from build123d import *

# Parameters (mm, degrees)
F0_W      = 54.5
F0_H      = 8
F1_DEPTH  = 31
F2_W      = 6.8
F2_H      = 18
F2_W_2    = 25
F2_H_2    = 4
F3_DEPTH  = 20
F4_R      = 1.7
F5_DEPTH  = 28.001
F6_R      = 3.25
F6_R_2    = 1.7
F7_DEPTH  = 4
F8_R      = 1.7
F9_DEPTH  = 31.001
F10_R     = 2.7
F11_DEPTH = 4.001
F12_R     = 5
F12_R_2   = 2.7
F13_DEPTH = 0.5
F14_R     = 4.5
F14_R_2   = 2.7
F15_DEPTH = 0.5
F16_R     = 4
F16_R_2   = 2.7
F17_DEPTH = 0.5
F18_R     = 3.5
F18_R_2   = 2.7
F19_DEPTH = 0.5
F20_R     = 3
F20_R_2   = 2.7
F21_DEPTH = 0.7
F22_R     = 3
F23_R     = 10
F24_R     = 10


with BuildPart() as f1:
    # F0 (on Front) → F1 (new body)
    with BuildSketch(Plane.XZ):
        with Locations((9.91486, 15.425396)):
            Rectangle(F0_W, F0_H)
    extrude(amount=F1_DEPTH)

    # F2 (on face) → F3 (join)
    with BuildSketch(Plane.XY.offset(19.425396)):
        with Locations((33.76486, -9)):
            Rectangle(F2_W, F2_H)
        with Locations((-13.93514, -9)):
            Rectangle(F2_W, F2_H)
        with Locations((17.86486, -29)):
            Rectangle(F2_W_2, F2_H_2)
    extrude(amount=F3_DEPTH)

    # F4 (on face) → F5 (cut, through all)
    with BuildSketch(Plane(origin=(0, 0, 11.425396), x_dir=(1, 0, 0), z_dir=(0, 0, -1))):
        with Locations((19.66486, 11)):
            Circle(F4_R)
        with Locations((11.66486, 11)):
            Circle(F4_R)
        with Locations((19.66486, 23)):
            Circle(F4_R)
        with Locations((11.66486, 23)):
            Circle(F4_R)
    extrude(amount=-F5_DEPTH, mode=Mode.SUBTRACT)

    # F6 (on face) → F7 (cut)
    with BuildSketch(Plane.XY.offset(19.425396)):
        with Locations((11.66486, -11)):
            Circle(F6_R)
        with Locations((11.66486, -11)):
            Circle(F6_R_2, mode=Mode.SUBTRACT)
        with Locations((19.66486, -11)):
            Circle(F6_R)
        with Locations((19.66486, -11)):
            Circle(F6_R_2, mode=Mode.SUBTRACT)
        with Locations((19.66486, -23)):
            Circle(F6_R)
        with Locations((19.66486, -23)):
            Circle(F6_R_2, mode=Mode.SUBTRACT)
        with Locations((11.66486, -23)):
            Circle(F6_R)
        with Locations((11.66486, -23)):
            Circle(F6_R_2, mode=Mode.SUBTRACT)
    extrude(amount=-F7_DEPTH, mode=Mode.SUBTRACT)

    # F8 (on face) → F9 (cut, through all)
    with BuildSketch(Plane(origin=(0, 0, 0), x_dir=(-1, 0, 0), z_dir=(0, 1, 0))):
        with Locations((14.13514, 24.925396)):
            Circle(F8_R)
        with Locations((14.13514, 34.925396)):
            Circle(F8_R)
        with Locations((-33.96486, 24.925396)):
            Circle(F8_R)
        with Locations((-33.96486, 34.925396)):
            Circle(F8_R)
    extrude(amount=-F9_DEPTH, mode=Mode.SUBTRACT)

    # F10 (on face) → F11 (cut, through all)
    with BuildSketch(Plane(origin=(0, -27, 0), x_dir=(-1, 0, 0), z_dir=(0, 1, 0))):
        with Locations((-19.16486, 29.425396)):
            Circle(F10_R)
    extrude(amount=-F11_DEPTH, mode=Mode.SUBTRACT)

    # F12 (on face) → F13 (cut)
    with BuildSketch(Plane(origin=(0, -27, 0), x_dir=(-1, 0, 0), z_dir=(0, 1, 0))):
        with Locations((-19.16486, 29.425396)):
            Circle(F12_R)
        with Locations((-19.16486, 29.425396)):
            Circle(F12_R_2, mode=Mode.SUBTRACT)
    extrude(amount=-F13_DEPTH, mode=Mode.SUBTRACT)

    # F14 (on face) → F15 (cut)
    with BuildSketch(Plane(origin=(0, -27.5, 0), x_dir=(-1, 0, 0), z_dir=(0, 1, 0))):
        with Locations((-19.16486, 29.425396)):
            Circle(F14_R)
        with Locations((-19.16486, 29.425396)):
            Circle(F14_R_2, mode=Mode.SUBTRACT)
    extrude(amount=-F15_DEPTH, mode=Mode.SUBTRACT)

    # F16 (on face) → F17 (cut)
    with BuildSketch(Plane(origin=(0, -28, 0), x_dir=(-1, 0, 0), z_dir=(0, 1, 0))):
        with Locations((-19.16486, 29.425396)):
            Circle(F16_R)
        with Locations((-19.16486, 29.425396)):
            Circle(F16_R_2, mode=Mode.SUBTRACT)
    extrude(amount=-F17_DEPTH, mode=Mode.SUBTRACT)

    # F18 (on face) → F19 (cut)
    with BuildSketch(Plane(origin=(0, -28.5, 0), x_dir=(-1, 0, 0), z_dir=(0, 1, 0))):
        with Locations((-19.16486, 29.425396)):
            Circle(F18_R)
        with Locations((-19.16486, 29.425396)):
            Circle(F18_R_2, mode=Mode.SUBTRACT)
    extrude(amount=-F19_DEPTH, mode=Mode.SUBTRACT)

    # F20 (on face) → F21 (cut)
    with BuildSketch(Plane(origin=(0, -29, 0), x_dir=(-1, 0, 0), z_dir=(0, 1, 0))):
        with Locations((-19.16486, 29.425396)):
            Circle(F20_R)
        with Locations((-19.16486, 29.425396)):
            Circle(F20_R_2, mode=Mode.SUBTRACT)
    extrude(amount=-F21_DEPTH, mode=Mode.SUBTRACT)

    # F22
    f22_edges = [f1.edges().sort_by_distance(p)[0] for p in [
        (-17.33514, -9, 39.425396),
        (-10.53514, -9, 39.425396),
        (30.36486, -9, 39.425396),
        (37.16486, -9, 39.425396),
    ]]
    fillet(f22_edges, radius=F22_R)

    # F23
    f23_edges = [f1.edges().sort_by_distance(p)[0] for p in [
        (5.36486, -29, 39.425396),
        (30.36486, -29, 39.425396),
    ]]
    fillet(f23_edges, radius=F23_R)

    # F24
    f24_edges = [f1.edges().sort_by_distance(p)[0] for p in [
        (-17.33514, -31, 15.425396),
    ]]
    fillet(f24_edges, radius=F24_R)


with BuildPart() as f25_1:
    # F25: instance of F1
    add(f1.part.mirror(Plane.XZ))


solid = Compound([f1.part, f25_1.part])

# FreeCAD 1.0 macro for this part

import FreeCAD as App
import Part
import Sketcher

V = App.Vector
Q = App.Units.Quantity


def edges_at(feature, points):
    """Names of the edges that pass closest to the given points."""
    edges = feature.Shape.Edges
    near = lambda p: min(range(len(edges)), key=lambda i: edges[i].distToShape(Part.Vertex(*p))[0])
    return sorted({f"Edge{near(p) + 1}" for p in points})

doc = App.newDocument("Part")
body = doc.addObject("PartDesign::Body", "Body")

# Sketch on XZ plane
sketch1 = body.newObject("Sketcher::SketchObject", "Sketch")
sketch1.AttachmentSupport = (doc.getObject("XZ_Plane"), [""])
sketch1.MapMode = "FlatFace"
sketch1.addGeometry([
    Part.LineSegment(V(-17, 19, 0), V(-17, 11, 0)),
    Part.LineSegment(V(-17, 11, 0), V(37, 11, 0)),
    Part.LineSegment(V(37, 11, 0), V(37, 19, 0)),
    Part.LineSegment(V(37, 19, 0), V(-17, 19, 0)),
], False)
sketch1.addConstraint([
    Sketcher.Constraint("Coincident", 0, 2, 1, 1),
    Sketcher.Constraint("Coincident", 1, 2, 2, 1),
    Sketcher.Constraint("Coincident", 2, 2, 3, 1),
    Sketcher.Constraint("Coincident", 3, 2, 0, 1),
    Sketcher.Constraint("Vertical", 0),
    Sketcher.Constraint("Horizontal", 1),
    Sketcher.Constraint("Vertical", 2),
    Sketcher.Constraint("Horizontal", 3),
    Sketcher.Constraint("DistanceY", 0, 2, 0, 1, Q("8 mm")),
    Sketcher.Constraint("DistanceX", 1, 1, 1, 2, Q("54.5 mm")),
    Sketcher.Constraint("DistanceX", 0, 2, -1, 1, Q("17.33514 mm")),
    Sketcher.Constraint("DistanceY", -1, 1, 0, 2, Q("11.425396 mm")),
])
pad1 = body.newObject("PartDesign::Pad", "Pad")
pad1.Profile = sketch1
pad1.Length = 31

# Sketch on XY plane
sketch2 = body.newObject("Sketcher::SketchObject", "Sketch001")
sketch2.AttachmentSupport = (doc.getObject("XY_Plane"), [""])
sketch2.MapMode = "FlatFace"
sketch2.AttachmentOffset = App.Placement(V(0, 0, 19.425396), App.Rotation())
sketch2.addGeometry([
    Part.LineSegment(V(30.4, 0, 0), V(30.4, -18, 0)),  # 0
    Part.LineSegment(V(30.4, -18, 0), V(37.2, -18, 0)),  # 1
    Part.LineSegment(V(37.2, -18, 0), V(37.2, 0, 0)),  # 2
    Part.LineSegment(V(37.2, 0, 0), V(30.4, 0, 0)),  # 3
    Part.LineSegment(V(-17.3, 0, 0), V(-17.3, -18, 0)),  # 4
    Part.LineSegment(V(-17.3, -18, 0), V(-10.5, -18, 0)),  # 5
    Part.LineSegment(V(-10.5, -18, 0), V(-10.5, 0, 0)),  # 6
    Part.LineSegment(V(-10.5, 0, 0), V(-17.3, 0, 0)),  # 7
    Part.LineSegment(V(5.4, -27, 0), V(5.4, -31, 0)),  # 8
    Part.LineSegment(V(5.4, -31, 0), V(30.4, -31, 0)),  # 9
    Part.LineSegment(V(30.4, -31, 0), V(30.4, -27, 0)),  # 10
    Part.LineSegment(V(30.4, -27, 0), V(5.4, -27, 0)),  # 11
], False)
sketch2.addConstraint([
    Sketcher.Constraint("Coincident", 0, 2, 1, 1),
    Sketcher.Constraint("Coincident", 1, 2, 2, 1),
    Sketcher.Constraint("Coincident", 2, 2, 3, 1),
    Sketcher.Constraint("Coincident", 3, 2, 0, 1),
    Sketcher.Constraint("Coincident", 4, 2, 5, 1),
    Sketcher.Constraint("Coincident", 5, 2, 6, 1),
    Sketcher.Constraint("Coincident", 6, 2, 7, 1),
    Sketcher.Constraint("Coincident", 7, 2, 4, 1),
    Sketcher.Constraint("Coincident", 8, 2, 9, 1),
    Sketcher.Constraint("Coincident", 9, 2, 10, 1),
    Sketcher.Constraint("Coincident", 10, 2, 11, 1),
    Sketcher.Constraint("Coincident", 11, 2, 8, 1),
    Sketcher.Constraint("Vertical", 0),
    Sketcher.Constraint("Horizontal", 1),
    Sketcher.Constraint("Vertical", 2),
    Sketcher.Constraint("Horizontal", 3),
    Sketcher.Constraint("Vertical", 4),
    Sketcher.Constraint("Horizontal", 5),
    Sketcher.Constraint("Vertical", 6),
    Sketcher.Constraint("Horizontal", 7),
    Sketcher.Constraint("Vertical", 8),
    Sketcher.Constraint("Horizontal", 9),
    Sketcher.Constraint("Vertical", 10),
    Sketcher.Constraint("Horizontal", 11),
    Sketcher.Constraint("PointOnObject", 2, 2, -1),
    Sketcher.Constraint("PointOnObject", 6, 2, -1),
    Sketcher.Constraint("Horizontal", 1, 2, 4, 2),
    Sketcher.Constraint("Vertical", 3, 2, 9, 2),
    Sketcher.Constraint("Equal", 3, 5),
    Sketcher.Constraint("DistanceX", 9, 1, 9, 2, Q("25 mm")),
    Sketcher.Constraint("DistanceY", 0, 2, 0, 1, Q("18 mm")),
    Sketcher.Constraint("DistanceY", 8, 2, 8, 1, Q("4 mm")),
    Sketcher.Constraint("DistanceX", 1, 1, 1, 2, Q("6.8 mm")),
    Sketcher.Constraint("DistanceY", 8, 2, -1, 1, Q("31 mm")),
    Sketcher.Constraint("DistanceX", 4, 2, 0, 2, Q("47.7 mm")),
    Sketcher.Constraint("DistanceX", -1, 1, 0, 2, Q("30.36486 mm")),
])
pad2 = body.newObject("PartDesign::Pad", "Pad001")
pad2.Profile = sketch2
pad2.Length = 20

# Sketch on XY plane
sketch3 = body.newObject("Sketcher::SketchObject", "Sketch002")
sketch3.AttachmentSupport = (doc.getObject("XY_Plane"), [""])
sketch3.MapMode = "FlatFace"
sketch3.AttachmentOffset = App.Placement(V(0, 0, 11.425396), App.Rotation())
sketch3.addGeometry([
    Part.Circle(V(19.7, -11, 0), V(0, 0, 1), 1.7),
    Part.Circle(V(11.7, -11, 0), V(0, 0, 1), 1.7),
    Part.Circle(V(19.7, -23, 0), V(0, 0, 1), 1.7),
    Part.Circle(V(11.7, -23, 0), V(0, 0, 1), 1.7),
], False)
sketch3.addConstraint([
    Sketcher.Constraint("Equal", 0, 1),
    Sketcher.Constraint("Equal", 1, 2),
    Sketcher.Constraint("Equal", 2, 3),
    Sketcher.Constraint("Horizontal", 0, 3, 1, 3),
    Sketcher.Constraint("Horizontal", 2, 3, 3, 3),
    Sketcher.Constraint("Vertical", 0, 3, 2, 3),
    Sketcher.Constraint("Vertical", 1, 3, 3, 3),
    Sketcher.Constraint("Diameter", 0, Q("3.4 mm")),
    Sketcher.Constraint("DistanceY", 0, 3, -1, 1, Q("11 mm")),
    Sketcher.Constraint("DistanceY", 2, 3, -1, 1, Q("23 mm")),
    Sketcher.Constraint("DistanceX", 1, 3, 0, 3, Q("8 mm")),
    Sketcher.Constraint("DistanceX", -1, 1, 0, 3, Q("19.66486 mm")),
])
pocket1 = body.newObject("PartDesign::Pocket", "Pocket")
pocket1.Profile = sketch3
pocket1.Type = "ThroughAll"
pocket1.Reversed = True

# Sketch on XY plane
sketch4 = body.newObject("Sketcher::SketchObject", "Sketch003")
sketch4.AttachmentSupport = (doc.getObject("XY_Plane"), [""])
sketch4.MapMode = "FlatFace"
sketch4.AttachmentOffset = App.Placement(V(0, 0, 19.425396), App.Rotation())
sketch4.addGeometry([
    Part.Circle(V(11.7, -11, 0), V(0, 0, 1), 3.2),  # 0
    Part.Circle(V(11.7, -11, 0), V(0, 0, 1), 1.7),  # 1
    Part.Circle(V(19.7, -11, 0), V(0, 0, 1), 3.2),  # 2
    Part.Circle(V(19.7, -11, 0), V(0, 0, 1), 1.7),  # 3
    Part.Circle(V(19.7, -23, 0), V(0, 0, 1), 3.2),  # 4
    Part.Circle(V(19.7, -23, 0), V(0, 0, 1), 1.7),  # 5
    Part.Circle(V(11.7, -23, 0), V(0, 0, 1), 3.2),  # 6
    Part.Circle(V(11.7, -23, 0), V(0, 0, 1), 1.7),  # 7
], False)
sketch4.addConstraint([
    Sketcher.Constraint("Coincident", 1, 3, 0, 3),
    Sketcher.Constraint("Coincident", 3, 3, 2, 3),
    Sketcher.Constraint("Coincident", 5, 3, 4, 3),
    Sketcher.Constraint("Coincident", 7, 3, 6, 3),
    Sketcher.Constraint("Equal", 0, 2),
    Sketcher.Constraint("Equal", 1, 3),
    Sketcher.Constraint("Equal", 2, 4),
    Sketcher.Constraint("Equal", 3, 5),
    Sketcher.Constraint("Equal", 4, 6),
    Sketcher.Constraint("Equal", 5, 7),
    Sketcher.Constraint("Horizontal", 1, 3, 2, 3),
    Sketcher.Constraint("Horizontal", 5, 3, 6, 3),
    Sketcher.Constraint("Vertical", 3, 3, 4, 3),
    Sketcher.Constraint("Vertical", 1, 3, 6, 3),
    Sketcher.Constraint("Diameter", 0, Q("6.5 mm")),
    Sketcher.Constraint("Diameter", 1, Q("3.4 mm")),
    Sketcher.Constraint("DistanceY", 0, 3, -1, 1, Q("11 mm")),
    Sketcher.Constraint("DistanceY", 4, 3, -1, 1, Q("23 mm")),
    Sketcher.Constraint("DistanceX", 0, 3, 2, 3, Q("8 mm")),
    Sketcher.Constraint("DistanceX", -1, 1, 0, 3, Q("11.66486 mm")),
])
pocket2 = body.newObject("PartDesign::Pocket", "Pocket001")
pocket2.Profile = sketch4
pocket2.Length = 4

# Sketch on XZ plane
sketch5 = body.newObject("Sketcher::SketchObject", "Sketch004")
sketch5.AttachmentSupport = (doc.getObject("XZ_Plane"), [""])
sketch5.MapMode = "FlatFace"
sketch5.addGeometry([
    Part.Circle(V(-14.1, 24.9, 0), V(0, 0, 1), 1.7),
    Part.Circle(V(-14.1, 34.9, 0), V(0, 0, 1), 1.7),
    Part.Circle(V(34, 24.9, 0), V(0, 0, 1), 1.7),
    Part.Circle(V(34, 34.9, 0), V(0, 0, 1), 1.7),
], False)
sketch5.addConstraint([
    Sketcher.Constraint("Equal", 0, 1),
    Sketcher.Constraint("Equal", 1, 2),
    Sketcher.Constraint("Equal", 2, 3),
    Sketcher.Constraint("Horizontal", 0, 3, 2, 3),
    Sketcher.Constraint("Horizontal", 1, 3, 3, 3),
    Sketcher.Constraint("Vertical", 0, 3, 1, 3),
    Sketcher.Constraint("Vertical", 2, 3, 3, 3),
    Sketcher.Constraint("Diameter", 0, Q("3.4 mm")),
    Sketcher.Constraint("DistanceY", 0, 3, 1, 3, Q("10 mm")),
    Sketcher.Constraint("DistanceX", 0, 3, 2, 3, Q("48.1 mm")),
    Sketcher.Constraint("DistanceX", 0, 3, -1, 1, Q("14.13514 mm")),
    Sketcher.Constraint("DistanceY", -1, 1, 0, 3, Q("24.925396 mm")),
])
pocket3 = body.newObject("PartDesign::Pocket", "Pocket002")
pocket3.Profile = sketch5
pocket3.Type = "ThroughAll"
pocket3.Reversed = True

# Sketch on XZ plane
sketch6 = body.newObject("Sketcher::SketchObject", "Sketch005")
sketch6.AttachmentSupport = (doc.getObject("XZ_Plane"), [""])
sketch6.MapMode = "FlatFace"
sketch6.AttachmentOffset = App.Placement(V(0, 0, 27), App.Rotation())
sketch6.addGeometry(Part.Circle(V(19.2, 29.4, 0), V(0, 0, 1), 2.7), False)
sketch6.addConstraint([
    Sketcher.Constraint("Diameter", 0, Q("5.4 mm")),
    Sketcher.Constraint("DistanceX", -1, 1, 0, 3, Q("19.16486 mm")),
    Sketcher.Constraint("DistanceY", -1, 1, 0, 3, Q("29.425396 mm")),
])
pocket4 = body.newObject("PartDesign::Pocket", "Pocket003")
pocket4.Profile = sketch6
pocket4.Type = "ThroughAll"
pocket4.Reversed = True

# Sketch on XZ plane
sketch7 = body.newObject("Sketcher::SketchObject", "Sketch006")
sketch7.AttachmentSupport = (doc.getObject("XZ_Plane"), [""])
sketch7.MapMode = "FlatFace"
sketch7.AttachmentOffset = App.Placement(V(0, 0, 27), App.Rotation())
sketch7.addGeometry([
    Part.Circle(V(19.2, 29.4, 0), V(0, 0, 1), 5),
    Part.Circle(V(19.2, 29.4, 0), V(0, 0, 1), 2.7),
], False)
sketch7.addConstraint([
    Sketcher.Constraint("Coincident", 1, 3, 0, 3),
    Sketcher.Constraint("Diameter", 0, Q("10 mm")),
    Sketcher.Constraint("Diameter", 1, Q("5.4 mm")),
    Sketcher.Constraint("DistanceX", -1, 1, 0, 3, Q("19.16486 mm")),
    Sketcher.Constraint("DistanceY", -1, 1, 0, 3, Q("29.425396 mm")),
])
pocket5 = body.newObject("PartDesign::Pocket", "Pocket004")
pocket5.Profile = sketch7
pocket5.Length = 0.5
pocket5.Reversed = True

# Sketch on XZ plane
sketch8 = body.newObject("Sketcher::SketchObject", "Sketch007")
sketch8.AttachmentSupport = (doc.getObject("XZ_Plane"), [""])
sketch8.MapMode = "FlatFace"
sketch8.AttachmentOffset = App.Placement(V(0, 0, 27.5), App.Rotation())
sketch8.addGeometry([
    Part.Circle(V(19.2, 29.4, 0), V(0, 0, 1), 4.5),
    Part.Circle(V(19.2, 29.4, 0), V(0, 0, 1), 2.7),
], False)
sketch8.addConstraint([
    Sketcher.Constraint("Coincident", 1, 3, 0, 3),
    Sketcher.Constraint("Diameter", 0, Q("9 mm")),
    Sketcher.Constraint("Diameter", 1, Q("5.4 mm")),
    Sketcher.Constraint("DistanceX", -1, 1, 0, 3, Q("19.16486 mm")),
    Sketcher.Constraint("DistanceY", -1, 1, 0, 3, Q("29.425396 mm")),
])
pocket6 = body.newObject("PartDesign::Pocket", "Pocket005")
pocket6.Profile = sketch8
pocket6.Length = 0.5
pocket6.Reversed = True

# Sketch on XZ plane
sketch9 = body.newObject("Sketcher::SketchObject", "Sketch008")
sketch9.AttachmentSupport = (doc.getObject("XZ_Plane"), [""])
sketch9.MapMode = "FlatFace"
sketch9.AttachmentOffset = App.Placement(V(0, 0, 28), App.Rotation())
sketch9.addGeometry([
    Part.Circle(V(19.2, 29.4, 0), V(0, 0, 1), 4),
    Part.Circle(V(19.2, 29.4, 0), V(0, 0, 1), 2.7),
], False)
sketch9.addConstraint([
    Sketcher.Constraint("Coincident", 1, 3, 0, 3),
    Sketcher.Constraint("Diameter", 0, Q("8 mm")),
    Sketcher.Constraint("Diameter", 1, Q("5.4 mm")),
    Sketcher.Constraint("DistanceX", -1, 1, 0, 3, Q("19.16486 mm")),
    Sketcher.Constraint("DistanceY", -1, 1, 0, 3, Q("29.425396 mm")),
])
pocket7 = body.newObject("PartDesign::Pocket", "Pocket006")
pocket7.Profile = sketch9
pocket7.Length = 0.5
pocket7.Reversed = True

# Sketch on XZ plane
sketch10 = body.newObject("Sketcher::SketchObject", "Sketch009")
sketch10.AttachmentSupport = (doc.getObject("XZ_Plane"), [""])
sketch10.MapMode = "FlatFace"
sketch10.AttachmentOffset = App.Placement(V(0, 0, 28.5), App.Rotation())
sketch10.addGeometry([
    Part.Circle(V(19.2, 29.4, 0), V(0, 0, 1), 3.5),
    Part.Circle(V(19.2, 29.4, 0), V(0, 0, 1), 2.7),
], False)
sketch10.addConstraint([
    Sketcher.Constraint("Coincident", 1, 3, 0, 3),
    Sketcher.Constraint("Diameter", 0, Q("7 mm")),
    Sketcher.Constraint("Diameter", 1, Q("5.4 mm")),
    Sketcher.Constraint("DistanceX", -1, 1, 0, 3, Q("19.16486 mm")),
    Sketcher.Constraint("DistanceY", -1, 1, 0, 3, Q("29.425396 mm")),
])
pocket8 = body.newObject("PartDesign::Pocket", "Pocket007")
pocket8.Profile = sketch10
pocket8.Length = 0.5
pocket8.Reversed = True

# Sketch on XZ plane
sketch11 = body.newObject("Sketcher::SketchObject", "Sketch010")
sketch11.AttachmentSupport = (doc.getObject("XZ_Plane"), [""])
sketch11.MapMode = "FlatFace"
sketch11.AttachmentOffset = App.Placement(V(0, 0, 29), App.Rotation())
sketch11.addGeometry([
    Part.Circle(V(19.2, 29.4, 0), V(0, 0, 1), 3),
    Part.Circle(V(19.2, 29.4, 0), V(0, 0, 1), 2.7),
], False)
sketch11.addConstraint([
    Sketcher.Constraint("Coincident", 1, 3, 0, 3),
    Sketcher.Constraint("Diameter", 0, Q("6 mm")),
    Sketcher.Constraint("Diameter", 1, Q("5.4 mm")),
    Sketcher.Constraint("DistanceX", -1, 1, 0, 3, Q("19.16486 mm")),
    Sketcher.Constraint("DistanceY", -1, 1, 0, 3, Q("29.425396 mm")),
])
pocket9 = body.newObject("PartDesign::Pocket", "Pocket008")
pocket9.Profile = sketch11
pocket9.Length = 0.7
pocket9.Reversed = True
doc.recompute()

fillet = body.newObject("PartDesign::Fillet", "Fillet")
fillet.Base = (pocket9, edges_at(pocket9, [
    (-17.335, -9, 39.425),
    (-10.535, -9, 39.425),
    (30.365, -9, 39.425),
    (37.165, -9, 39.425),
]))
fillet.Radius = 3
doc.recompute()

fillet2 = body.newObject("PartDesign::Fillet", "Fillet001")
fillet2.Base = (fillet, edges_at(fillet, [(5.365, -29, 39.425), (30.365, -29, 39.425)]))
fillet2.Radius = 10
doc.recompute()

fillet3 = body.newObject("PartDesign::Fillet", "Fillet002")
fillet3.Base = (fillet2, edges_at(fillet2, [(-17.335, -31, 15.425)]))
fillet3.Radius = 10
body2 = doc.addObject("PartDesign::Body", "Body001")
doc.recompute()

mirroring = doc.addObject("Part::Mirroring", "Mirroring")
mirroring.Source = body
mirroring.Base = V(0, 0, 0)
mirroring.Normal = V(0, -1, 0)
body2.BaseFeature = mirroring
doc.recompute()
mirroring.Visibility = False

doc.recompute()
